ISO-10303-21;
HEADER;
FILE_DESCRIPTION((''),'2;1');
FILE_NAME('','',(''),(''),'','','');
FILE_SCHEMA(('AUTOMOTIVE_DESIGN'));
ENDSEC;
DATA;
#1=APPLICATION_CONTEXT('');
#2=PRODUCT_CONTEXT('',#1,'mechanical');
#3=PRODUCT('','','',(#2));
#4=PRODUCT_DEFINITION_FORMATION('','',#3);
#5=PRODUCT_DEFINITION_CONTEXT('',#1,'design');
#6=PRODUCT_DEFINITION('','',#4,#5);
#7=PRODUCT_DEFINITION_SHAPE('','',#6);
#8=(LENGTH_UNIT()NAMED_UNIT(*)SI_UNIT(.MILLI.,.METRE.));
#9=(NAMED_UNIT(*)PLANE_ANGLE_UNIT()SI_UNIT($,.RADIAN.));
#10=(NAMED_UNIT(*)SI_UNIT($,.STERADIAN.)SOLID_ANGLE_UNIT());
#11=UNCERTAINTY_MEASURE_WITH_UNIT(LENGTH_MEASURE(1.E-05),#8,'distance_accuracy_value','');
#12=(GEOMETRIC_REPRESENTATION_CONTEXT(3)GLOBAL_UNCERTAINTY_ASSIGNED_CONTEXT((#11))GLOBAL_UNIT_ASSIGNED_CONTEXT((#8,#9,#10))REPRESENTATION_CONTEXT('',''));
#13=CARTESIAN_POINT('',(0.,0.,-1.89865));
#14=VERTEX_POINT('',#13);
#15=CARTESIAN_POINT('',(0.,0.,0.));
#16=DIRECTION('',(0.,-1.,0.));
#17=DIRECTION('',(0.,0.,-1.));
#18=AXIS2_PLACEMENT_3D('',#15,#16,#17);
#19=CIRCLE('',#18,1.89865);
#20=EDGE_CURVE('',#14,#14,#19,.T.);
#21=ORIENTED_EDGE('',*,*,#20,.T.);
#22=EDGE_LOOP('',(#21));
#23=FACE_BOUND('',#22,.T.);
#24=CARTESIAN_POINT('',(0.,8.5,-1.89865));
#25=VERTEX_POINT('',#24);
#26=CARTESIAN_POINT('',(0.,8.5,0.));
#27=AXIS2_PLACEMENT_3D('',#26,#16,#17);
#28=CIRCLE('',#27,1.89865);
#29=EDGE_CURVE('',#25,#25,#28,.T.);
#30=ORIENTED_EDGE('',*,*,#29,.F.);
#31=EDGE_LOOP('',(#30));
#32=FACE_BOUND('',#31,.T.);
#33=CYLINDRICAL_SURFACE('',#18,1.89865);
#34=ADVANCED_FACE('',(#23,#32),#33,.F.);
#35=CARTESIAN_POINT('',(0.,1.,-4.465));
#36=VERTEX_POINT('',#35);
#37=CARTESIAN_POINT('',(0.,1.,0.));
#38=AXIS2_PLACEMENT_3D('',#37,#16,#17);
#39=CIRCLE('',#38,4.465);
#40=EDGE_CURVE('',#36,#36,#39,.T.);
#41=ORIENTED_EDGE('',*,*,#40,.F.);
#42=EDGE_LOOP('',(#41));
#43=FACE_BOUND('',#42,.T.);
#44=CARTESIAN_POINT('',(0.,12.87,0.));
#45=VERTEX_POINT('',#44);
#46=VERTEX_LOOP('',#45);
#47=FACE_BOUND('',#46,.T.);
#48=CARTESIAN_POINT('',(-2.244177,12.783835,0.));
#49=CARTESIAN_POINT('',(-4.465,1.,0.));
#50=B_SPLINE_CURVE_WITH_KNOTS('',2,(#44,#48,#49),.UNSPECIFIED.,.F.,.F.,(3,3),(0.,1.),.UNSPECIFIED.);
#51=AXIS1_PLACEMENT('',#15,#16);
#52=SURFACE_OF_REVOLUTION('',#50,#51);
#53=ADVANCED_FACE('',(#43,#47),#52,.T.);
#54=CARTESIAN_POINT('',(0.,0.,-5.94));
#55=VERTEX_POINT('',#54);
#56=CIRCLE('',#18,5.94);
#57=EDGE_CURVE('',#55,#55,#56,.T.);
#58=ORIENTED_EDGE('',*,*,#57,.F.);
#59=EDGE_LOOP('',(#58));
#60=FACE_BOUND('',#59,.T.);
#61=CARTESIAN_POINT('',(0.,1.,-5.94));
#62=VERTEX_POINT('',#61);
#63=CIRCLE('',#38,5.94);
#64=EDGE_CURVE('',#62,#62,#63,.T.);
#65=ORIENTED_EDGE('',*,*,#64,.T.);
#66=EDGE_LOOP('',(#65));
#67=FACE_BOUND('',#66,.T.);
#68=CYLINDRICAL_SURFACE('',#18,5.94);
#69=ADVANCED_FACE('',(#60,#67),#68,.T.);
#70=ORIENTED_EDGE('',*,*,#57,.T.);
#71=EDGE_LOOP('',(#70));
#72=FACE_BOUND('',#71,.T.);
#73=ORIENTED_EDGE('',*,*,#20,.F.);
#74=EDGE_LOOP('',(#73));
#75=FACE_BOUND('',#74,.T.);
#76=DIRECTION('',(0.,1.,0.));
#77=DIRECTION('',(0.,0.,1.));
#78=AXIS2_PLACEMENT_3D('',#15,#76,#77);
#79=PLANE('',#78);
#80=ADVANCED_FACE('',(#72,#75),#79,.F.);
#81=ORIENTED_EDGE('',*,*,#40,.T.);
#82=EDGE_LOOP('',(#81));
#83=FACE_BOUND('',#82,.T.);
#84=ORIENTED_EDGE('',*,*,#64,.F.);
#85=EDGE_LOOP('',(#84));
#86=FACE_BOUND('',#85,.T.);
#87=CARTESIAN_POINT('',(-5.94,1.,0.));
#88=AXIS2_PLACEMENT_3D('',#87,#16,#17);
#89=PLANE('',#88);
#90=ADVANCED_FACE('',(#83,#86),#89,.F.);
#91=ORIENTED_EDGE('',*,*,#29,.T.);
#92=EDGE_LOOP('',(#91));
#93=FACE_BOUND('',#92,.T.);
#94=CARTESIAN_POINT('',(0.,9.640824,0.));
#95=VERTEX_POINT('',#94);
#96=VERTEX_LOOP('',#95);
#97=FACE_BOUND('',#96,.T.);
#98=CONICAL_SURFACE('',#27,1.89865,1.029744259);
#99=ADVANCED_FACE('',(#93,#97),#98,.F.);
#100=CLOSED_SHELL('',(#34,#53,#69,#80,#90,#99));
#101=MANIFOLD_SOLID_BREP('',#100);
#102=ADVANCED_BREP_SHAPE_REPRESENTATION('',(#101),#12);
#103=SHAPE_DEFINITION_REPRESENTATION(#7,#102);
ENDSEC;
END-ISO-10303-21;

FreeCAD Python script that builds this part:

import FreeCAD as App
import Part
import Sketcher
from FreeCAD import Vector

doc = App.newDocument("Part")
params = doc.addObject("Spreadsheet::Sheet", "Params")
for row, (alias, value) in enumerate([
    ("sketch1_width", "5.94 mm"),
    ("revolution_angle", "360 deg"),
    ("hole_diameter", "3.7973 mm"),
    ("hole_depth", "8.5 mm"),
], start=1):
    params.set(f"A{row}", alias)
    params.set(f"B{row}", "=" + value)
    params.setAlias(f"B{row}", alias)

body = doc.addObject("PartDesign::Body", "Body")

# Sketch on XY plane
sketch1 = body.newObject("Sketcher::SketchObject", "Sketch")
sketch1.AttachmentSupport = (doc.getObject("XY_Plane"), [""])
sketch1.MapMode = "FlatFace"
sketch1.addGeometry([
    Part.LineSegment(Vector(0, 0, 0), Vector(0, 12.87, 0)),  # 0
    Part.BSplineCurve([Vector(0, 12.87, 0), Vector(-2.244177, 12.783835, 0), Vector(-4.465, 1, 0)], [3, 3], [0, 1], False, 2, [1, 1, 1], False),  # 1
    Part.LineSegment(Vector(-4.465, 1, 0), Vector(-5.94, 1, 0)),  # 2
    Part.LineSegment(Vector(-5.94, 1, 0), Vector(-5.94, 0, 0)),  # 3
    Part.LineSegment(Vector(-5.94, 0, 0), Vector(0, 0, 0)),  # 4
], False)
sketch1.addConstraint([
    Sketcher.Constraint("Block", 1),
    Sketcher.Constraint("Coincident", 0, 2, 1, 1),
    Sketcher.Constraint("Coincident", 1, 2, 2, 1),
    Sketcher.Constraint("Coincident", 2, 2, 3, 1),
    Sketcher.Constraint("Coincident", 3, 2, 4, 1),
    Sketcher.Constraint("Coincident", 4, 2, 0, 1),
    Sketcher.Constraint("Vertical", 0),
    Sketcher.Constraint("Horizontal", 2),
    Sketcher.Constraint("Vertical", 3),
    Sketcher.Constraint("Horizontal", 4),
    Sketcher.Constraint("PointOnObject", 3, 2, -1),
    Sketcher.Constraint("DistanceX", 4, 1, 4, 2, 5.94),
])
sketch1.setExpression("Constraints[11]", "Params.sketch1_width")
revolution = body.newObject("PartDesign::Revolution", "Revolution")
revolution.Profile = sketch1
revolution.ReferenceAxis = (sketch1, ["V_Axis"])
revolution.setExpression("Angle", "Params.revolution_angle")

# Sketch on XZ plane
sketch2 = body.newObject("Sketcher::SketchObject", "Sketch001")
sketch2.AttachmentSupport = (doc.getObject("XZ_Plane"), [""])
sketch2.MapMode = "FlatFace"
sketch2.addGeometry(Part.Circle(Vector(0, 0, 0), Vector(0, 0, 1), 1.9), False)
sketch2.addConstraint([
    Sketcher.Constraint("Coincident", 0, 3, -1, 1),
    Sketcher.Constraint("Diameter", 0, 3.7973),
])
doc.recompute()
hole = body.newObject("PartDesign::Hole", "Hole")
hole.Profile = sketch2
hole.ThreadType = "None"
hole.setExpression("Diameter", "Params.hole_diameter")
hole.DepthType = "Dimension"
hole.setExpression("Depth", "Params.hole_depth")
hole.DrillPoint = "Angled"
hole.DrillPointAngle = 118

doc.recompute()
